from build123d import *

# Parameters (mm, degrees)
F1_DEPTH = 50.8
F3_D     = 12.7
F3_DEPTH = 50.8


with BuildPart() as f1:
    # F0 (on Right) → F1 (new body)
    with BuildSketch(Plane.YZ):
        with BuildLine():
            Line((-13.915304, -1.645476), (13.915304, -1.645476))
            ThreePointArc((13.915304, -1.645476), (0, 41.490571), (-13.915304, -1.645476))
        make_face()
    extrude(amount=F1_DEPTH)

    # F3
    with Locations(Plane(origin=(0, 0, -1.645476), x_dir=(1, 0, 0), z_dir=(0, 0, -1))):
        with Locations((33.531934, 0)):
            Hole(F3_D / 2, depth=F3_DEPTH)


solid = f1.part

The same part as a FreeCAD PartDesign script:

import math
import FreeCAD as App
import Part
import Sketcher
Q = App.Units.Quantity

doc = App.newDocument("Part")
body = doc.addObject("PartDesign::Body", "Body")

# Sketch on YZ plane
sketch1 = body.newObject("Sketcher::SketchObject", "Sketch")
sketch1.AttachmentSupport = (doc.getObject("YZ_Plane"), [""])
sketch1.MapMode = "FlatFace"
sketch1.addGeometry(Part.LineSegment(App.Vector(-13.915304, -1.645476, 0), App.Vector(13.915304, -1.645476, 0)), False)
sketch1.addGeometry(Part.ArcOfCircle(Part.Circle(App.Vector(0, 17.678071, 0), App.Vector(0, 0, 1), 23.8125), math.radians(-54.241524), math.radians(234.241524)), False)
sketch1.addConstraint(Sketcher.Constraint("Coincident", 0, 1, 1, 2))
sketch1.addConstraint(Sketcher.Constraint("Coincident", 1, 1, 0, 2))
sketch1.addConstraint(Sketcher.Constraint("Horizontal", 0))
sketch1.addConstraint(Sketcher.Constraint("PointOnObject", 1, 3, -2))
sketch1.addConstraint(Sketcher.Constraint("Radius", 1, Q("0.9375 in")))
sketch1.addConstraint(Sketcher.Constraint("DistanceX", 0, 1, 0, 2, Q("27.830608 mm")))
sketch1.addConstraint(Sketcher.Constraint("DistanceY", -1, 1, 1, 3, Q("17.678071 mm")))
pad1 = body.newObject("PartDesign::Pad", "Pad")
pad1.Profile = sketch1
pad1.Length = Q("2 in")

# Sketch on XY plane
sketch2 = body.newObject("Sketcher::SketchObject", "Sketch001")
sketch2.AttachmentSupport = (doc.getObject("XY_Plane"), [""])
sketch2.MapMode = "FlatFace"
sketch2.AttachmentOffset = App.Placement(App.Vector(0, 0, -1.645476), App.Rotation())
sketch2.addGeometry(Part.Circle(App.Vector(33.531934, 0, 0), App.Vector(0, 0, 1), 6.35), False)
sketch2.addConstraint(Sketcher.Constraint("PointOnObject", 0, 3, -1))
sketch2.addConstraint(Sketcher.Constraint("Diameter", 0, Q("0.5 in")))
sketch2.addConstraint(Sketcher.Constraint("DistanceX", -1, 1, 0, 3, Q("33.531934 mm")))
doc.recompute()
hole = body.newObject("PartDesign::Hole", "Hole")
hole.Profile = sketch2
hole.ThreadType = "None"
hole.Diameter = Q("0.5 in")
hole.DepthType = "Dimension"
hole.Depth = Q("2 in")
hole.DrillPoint = "Flat"
hole.Reversed = True

doc.recompute()
